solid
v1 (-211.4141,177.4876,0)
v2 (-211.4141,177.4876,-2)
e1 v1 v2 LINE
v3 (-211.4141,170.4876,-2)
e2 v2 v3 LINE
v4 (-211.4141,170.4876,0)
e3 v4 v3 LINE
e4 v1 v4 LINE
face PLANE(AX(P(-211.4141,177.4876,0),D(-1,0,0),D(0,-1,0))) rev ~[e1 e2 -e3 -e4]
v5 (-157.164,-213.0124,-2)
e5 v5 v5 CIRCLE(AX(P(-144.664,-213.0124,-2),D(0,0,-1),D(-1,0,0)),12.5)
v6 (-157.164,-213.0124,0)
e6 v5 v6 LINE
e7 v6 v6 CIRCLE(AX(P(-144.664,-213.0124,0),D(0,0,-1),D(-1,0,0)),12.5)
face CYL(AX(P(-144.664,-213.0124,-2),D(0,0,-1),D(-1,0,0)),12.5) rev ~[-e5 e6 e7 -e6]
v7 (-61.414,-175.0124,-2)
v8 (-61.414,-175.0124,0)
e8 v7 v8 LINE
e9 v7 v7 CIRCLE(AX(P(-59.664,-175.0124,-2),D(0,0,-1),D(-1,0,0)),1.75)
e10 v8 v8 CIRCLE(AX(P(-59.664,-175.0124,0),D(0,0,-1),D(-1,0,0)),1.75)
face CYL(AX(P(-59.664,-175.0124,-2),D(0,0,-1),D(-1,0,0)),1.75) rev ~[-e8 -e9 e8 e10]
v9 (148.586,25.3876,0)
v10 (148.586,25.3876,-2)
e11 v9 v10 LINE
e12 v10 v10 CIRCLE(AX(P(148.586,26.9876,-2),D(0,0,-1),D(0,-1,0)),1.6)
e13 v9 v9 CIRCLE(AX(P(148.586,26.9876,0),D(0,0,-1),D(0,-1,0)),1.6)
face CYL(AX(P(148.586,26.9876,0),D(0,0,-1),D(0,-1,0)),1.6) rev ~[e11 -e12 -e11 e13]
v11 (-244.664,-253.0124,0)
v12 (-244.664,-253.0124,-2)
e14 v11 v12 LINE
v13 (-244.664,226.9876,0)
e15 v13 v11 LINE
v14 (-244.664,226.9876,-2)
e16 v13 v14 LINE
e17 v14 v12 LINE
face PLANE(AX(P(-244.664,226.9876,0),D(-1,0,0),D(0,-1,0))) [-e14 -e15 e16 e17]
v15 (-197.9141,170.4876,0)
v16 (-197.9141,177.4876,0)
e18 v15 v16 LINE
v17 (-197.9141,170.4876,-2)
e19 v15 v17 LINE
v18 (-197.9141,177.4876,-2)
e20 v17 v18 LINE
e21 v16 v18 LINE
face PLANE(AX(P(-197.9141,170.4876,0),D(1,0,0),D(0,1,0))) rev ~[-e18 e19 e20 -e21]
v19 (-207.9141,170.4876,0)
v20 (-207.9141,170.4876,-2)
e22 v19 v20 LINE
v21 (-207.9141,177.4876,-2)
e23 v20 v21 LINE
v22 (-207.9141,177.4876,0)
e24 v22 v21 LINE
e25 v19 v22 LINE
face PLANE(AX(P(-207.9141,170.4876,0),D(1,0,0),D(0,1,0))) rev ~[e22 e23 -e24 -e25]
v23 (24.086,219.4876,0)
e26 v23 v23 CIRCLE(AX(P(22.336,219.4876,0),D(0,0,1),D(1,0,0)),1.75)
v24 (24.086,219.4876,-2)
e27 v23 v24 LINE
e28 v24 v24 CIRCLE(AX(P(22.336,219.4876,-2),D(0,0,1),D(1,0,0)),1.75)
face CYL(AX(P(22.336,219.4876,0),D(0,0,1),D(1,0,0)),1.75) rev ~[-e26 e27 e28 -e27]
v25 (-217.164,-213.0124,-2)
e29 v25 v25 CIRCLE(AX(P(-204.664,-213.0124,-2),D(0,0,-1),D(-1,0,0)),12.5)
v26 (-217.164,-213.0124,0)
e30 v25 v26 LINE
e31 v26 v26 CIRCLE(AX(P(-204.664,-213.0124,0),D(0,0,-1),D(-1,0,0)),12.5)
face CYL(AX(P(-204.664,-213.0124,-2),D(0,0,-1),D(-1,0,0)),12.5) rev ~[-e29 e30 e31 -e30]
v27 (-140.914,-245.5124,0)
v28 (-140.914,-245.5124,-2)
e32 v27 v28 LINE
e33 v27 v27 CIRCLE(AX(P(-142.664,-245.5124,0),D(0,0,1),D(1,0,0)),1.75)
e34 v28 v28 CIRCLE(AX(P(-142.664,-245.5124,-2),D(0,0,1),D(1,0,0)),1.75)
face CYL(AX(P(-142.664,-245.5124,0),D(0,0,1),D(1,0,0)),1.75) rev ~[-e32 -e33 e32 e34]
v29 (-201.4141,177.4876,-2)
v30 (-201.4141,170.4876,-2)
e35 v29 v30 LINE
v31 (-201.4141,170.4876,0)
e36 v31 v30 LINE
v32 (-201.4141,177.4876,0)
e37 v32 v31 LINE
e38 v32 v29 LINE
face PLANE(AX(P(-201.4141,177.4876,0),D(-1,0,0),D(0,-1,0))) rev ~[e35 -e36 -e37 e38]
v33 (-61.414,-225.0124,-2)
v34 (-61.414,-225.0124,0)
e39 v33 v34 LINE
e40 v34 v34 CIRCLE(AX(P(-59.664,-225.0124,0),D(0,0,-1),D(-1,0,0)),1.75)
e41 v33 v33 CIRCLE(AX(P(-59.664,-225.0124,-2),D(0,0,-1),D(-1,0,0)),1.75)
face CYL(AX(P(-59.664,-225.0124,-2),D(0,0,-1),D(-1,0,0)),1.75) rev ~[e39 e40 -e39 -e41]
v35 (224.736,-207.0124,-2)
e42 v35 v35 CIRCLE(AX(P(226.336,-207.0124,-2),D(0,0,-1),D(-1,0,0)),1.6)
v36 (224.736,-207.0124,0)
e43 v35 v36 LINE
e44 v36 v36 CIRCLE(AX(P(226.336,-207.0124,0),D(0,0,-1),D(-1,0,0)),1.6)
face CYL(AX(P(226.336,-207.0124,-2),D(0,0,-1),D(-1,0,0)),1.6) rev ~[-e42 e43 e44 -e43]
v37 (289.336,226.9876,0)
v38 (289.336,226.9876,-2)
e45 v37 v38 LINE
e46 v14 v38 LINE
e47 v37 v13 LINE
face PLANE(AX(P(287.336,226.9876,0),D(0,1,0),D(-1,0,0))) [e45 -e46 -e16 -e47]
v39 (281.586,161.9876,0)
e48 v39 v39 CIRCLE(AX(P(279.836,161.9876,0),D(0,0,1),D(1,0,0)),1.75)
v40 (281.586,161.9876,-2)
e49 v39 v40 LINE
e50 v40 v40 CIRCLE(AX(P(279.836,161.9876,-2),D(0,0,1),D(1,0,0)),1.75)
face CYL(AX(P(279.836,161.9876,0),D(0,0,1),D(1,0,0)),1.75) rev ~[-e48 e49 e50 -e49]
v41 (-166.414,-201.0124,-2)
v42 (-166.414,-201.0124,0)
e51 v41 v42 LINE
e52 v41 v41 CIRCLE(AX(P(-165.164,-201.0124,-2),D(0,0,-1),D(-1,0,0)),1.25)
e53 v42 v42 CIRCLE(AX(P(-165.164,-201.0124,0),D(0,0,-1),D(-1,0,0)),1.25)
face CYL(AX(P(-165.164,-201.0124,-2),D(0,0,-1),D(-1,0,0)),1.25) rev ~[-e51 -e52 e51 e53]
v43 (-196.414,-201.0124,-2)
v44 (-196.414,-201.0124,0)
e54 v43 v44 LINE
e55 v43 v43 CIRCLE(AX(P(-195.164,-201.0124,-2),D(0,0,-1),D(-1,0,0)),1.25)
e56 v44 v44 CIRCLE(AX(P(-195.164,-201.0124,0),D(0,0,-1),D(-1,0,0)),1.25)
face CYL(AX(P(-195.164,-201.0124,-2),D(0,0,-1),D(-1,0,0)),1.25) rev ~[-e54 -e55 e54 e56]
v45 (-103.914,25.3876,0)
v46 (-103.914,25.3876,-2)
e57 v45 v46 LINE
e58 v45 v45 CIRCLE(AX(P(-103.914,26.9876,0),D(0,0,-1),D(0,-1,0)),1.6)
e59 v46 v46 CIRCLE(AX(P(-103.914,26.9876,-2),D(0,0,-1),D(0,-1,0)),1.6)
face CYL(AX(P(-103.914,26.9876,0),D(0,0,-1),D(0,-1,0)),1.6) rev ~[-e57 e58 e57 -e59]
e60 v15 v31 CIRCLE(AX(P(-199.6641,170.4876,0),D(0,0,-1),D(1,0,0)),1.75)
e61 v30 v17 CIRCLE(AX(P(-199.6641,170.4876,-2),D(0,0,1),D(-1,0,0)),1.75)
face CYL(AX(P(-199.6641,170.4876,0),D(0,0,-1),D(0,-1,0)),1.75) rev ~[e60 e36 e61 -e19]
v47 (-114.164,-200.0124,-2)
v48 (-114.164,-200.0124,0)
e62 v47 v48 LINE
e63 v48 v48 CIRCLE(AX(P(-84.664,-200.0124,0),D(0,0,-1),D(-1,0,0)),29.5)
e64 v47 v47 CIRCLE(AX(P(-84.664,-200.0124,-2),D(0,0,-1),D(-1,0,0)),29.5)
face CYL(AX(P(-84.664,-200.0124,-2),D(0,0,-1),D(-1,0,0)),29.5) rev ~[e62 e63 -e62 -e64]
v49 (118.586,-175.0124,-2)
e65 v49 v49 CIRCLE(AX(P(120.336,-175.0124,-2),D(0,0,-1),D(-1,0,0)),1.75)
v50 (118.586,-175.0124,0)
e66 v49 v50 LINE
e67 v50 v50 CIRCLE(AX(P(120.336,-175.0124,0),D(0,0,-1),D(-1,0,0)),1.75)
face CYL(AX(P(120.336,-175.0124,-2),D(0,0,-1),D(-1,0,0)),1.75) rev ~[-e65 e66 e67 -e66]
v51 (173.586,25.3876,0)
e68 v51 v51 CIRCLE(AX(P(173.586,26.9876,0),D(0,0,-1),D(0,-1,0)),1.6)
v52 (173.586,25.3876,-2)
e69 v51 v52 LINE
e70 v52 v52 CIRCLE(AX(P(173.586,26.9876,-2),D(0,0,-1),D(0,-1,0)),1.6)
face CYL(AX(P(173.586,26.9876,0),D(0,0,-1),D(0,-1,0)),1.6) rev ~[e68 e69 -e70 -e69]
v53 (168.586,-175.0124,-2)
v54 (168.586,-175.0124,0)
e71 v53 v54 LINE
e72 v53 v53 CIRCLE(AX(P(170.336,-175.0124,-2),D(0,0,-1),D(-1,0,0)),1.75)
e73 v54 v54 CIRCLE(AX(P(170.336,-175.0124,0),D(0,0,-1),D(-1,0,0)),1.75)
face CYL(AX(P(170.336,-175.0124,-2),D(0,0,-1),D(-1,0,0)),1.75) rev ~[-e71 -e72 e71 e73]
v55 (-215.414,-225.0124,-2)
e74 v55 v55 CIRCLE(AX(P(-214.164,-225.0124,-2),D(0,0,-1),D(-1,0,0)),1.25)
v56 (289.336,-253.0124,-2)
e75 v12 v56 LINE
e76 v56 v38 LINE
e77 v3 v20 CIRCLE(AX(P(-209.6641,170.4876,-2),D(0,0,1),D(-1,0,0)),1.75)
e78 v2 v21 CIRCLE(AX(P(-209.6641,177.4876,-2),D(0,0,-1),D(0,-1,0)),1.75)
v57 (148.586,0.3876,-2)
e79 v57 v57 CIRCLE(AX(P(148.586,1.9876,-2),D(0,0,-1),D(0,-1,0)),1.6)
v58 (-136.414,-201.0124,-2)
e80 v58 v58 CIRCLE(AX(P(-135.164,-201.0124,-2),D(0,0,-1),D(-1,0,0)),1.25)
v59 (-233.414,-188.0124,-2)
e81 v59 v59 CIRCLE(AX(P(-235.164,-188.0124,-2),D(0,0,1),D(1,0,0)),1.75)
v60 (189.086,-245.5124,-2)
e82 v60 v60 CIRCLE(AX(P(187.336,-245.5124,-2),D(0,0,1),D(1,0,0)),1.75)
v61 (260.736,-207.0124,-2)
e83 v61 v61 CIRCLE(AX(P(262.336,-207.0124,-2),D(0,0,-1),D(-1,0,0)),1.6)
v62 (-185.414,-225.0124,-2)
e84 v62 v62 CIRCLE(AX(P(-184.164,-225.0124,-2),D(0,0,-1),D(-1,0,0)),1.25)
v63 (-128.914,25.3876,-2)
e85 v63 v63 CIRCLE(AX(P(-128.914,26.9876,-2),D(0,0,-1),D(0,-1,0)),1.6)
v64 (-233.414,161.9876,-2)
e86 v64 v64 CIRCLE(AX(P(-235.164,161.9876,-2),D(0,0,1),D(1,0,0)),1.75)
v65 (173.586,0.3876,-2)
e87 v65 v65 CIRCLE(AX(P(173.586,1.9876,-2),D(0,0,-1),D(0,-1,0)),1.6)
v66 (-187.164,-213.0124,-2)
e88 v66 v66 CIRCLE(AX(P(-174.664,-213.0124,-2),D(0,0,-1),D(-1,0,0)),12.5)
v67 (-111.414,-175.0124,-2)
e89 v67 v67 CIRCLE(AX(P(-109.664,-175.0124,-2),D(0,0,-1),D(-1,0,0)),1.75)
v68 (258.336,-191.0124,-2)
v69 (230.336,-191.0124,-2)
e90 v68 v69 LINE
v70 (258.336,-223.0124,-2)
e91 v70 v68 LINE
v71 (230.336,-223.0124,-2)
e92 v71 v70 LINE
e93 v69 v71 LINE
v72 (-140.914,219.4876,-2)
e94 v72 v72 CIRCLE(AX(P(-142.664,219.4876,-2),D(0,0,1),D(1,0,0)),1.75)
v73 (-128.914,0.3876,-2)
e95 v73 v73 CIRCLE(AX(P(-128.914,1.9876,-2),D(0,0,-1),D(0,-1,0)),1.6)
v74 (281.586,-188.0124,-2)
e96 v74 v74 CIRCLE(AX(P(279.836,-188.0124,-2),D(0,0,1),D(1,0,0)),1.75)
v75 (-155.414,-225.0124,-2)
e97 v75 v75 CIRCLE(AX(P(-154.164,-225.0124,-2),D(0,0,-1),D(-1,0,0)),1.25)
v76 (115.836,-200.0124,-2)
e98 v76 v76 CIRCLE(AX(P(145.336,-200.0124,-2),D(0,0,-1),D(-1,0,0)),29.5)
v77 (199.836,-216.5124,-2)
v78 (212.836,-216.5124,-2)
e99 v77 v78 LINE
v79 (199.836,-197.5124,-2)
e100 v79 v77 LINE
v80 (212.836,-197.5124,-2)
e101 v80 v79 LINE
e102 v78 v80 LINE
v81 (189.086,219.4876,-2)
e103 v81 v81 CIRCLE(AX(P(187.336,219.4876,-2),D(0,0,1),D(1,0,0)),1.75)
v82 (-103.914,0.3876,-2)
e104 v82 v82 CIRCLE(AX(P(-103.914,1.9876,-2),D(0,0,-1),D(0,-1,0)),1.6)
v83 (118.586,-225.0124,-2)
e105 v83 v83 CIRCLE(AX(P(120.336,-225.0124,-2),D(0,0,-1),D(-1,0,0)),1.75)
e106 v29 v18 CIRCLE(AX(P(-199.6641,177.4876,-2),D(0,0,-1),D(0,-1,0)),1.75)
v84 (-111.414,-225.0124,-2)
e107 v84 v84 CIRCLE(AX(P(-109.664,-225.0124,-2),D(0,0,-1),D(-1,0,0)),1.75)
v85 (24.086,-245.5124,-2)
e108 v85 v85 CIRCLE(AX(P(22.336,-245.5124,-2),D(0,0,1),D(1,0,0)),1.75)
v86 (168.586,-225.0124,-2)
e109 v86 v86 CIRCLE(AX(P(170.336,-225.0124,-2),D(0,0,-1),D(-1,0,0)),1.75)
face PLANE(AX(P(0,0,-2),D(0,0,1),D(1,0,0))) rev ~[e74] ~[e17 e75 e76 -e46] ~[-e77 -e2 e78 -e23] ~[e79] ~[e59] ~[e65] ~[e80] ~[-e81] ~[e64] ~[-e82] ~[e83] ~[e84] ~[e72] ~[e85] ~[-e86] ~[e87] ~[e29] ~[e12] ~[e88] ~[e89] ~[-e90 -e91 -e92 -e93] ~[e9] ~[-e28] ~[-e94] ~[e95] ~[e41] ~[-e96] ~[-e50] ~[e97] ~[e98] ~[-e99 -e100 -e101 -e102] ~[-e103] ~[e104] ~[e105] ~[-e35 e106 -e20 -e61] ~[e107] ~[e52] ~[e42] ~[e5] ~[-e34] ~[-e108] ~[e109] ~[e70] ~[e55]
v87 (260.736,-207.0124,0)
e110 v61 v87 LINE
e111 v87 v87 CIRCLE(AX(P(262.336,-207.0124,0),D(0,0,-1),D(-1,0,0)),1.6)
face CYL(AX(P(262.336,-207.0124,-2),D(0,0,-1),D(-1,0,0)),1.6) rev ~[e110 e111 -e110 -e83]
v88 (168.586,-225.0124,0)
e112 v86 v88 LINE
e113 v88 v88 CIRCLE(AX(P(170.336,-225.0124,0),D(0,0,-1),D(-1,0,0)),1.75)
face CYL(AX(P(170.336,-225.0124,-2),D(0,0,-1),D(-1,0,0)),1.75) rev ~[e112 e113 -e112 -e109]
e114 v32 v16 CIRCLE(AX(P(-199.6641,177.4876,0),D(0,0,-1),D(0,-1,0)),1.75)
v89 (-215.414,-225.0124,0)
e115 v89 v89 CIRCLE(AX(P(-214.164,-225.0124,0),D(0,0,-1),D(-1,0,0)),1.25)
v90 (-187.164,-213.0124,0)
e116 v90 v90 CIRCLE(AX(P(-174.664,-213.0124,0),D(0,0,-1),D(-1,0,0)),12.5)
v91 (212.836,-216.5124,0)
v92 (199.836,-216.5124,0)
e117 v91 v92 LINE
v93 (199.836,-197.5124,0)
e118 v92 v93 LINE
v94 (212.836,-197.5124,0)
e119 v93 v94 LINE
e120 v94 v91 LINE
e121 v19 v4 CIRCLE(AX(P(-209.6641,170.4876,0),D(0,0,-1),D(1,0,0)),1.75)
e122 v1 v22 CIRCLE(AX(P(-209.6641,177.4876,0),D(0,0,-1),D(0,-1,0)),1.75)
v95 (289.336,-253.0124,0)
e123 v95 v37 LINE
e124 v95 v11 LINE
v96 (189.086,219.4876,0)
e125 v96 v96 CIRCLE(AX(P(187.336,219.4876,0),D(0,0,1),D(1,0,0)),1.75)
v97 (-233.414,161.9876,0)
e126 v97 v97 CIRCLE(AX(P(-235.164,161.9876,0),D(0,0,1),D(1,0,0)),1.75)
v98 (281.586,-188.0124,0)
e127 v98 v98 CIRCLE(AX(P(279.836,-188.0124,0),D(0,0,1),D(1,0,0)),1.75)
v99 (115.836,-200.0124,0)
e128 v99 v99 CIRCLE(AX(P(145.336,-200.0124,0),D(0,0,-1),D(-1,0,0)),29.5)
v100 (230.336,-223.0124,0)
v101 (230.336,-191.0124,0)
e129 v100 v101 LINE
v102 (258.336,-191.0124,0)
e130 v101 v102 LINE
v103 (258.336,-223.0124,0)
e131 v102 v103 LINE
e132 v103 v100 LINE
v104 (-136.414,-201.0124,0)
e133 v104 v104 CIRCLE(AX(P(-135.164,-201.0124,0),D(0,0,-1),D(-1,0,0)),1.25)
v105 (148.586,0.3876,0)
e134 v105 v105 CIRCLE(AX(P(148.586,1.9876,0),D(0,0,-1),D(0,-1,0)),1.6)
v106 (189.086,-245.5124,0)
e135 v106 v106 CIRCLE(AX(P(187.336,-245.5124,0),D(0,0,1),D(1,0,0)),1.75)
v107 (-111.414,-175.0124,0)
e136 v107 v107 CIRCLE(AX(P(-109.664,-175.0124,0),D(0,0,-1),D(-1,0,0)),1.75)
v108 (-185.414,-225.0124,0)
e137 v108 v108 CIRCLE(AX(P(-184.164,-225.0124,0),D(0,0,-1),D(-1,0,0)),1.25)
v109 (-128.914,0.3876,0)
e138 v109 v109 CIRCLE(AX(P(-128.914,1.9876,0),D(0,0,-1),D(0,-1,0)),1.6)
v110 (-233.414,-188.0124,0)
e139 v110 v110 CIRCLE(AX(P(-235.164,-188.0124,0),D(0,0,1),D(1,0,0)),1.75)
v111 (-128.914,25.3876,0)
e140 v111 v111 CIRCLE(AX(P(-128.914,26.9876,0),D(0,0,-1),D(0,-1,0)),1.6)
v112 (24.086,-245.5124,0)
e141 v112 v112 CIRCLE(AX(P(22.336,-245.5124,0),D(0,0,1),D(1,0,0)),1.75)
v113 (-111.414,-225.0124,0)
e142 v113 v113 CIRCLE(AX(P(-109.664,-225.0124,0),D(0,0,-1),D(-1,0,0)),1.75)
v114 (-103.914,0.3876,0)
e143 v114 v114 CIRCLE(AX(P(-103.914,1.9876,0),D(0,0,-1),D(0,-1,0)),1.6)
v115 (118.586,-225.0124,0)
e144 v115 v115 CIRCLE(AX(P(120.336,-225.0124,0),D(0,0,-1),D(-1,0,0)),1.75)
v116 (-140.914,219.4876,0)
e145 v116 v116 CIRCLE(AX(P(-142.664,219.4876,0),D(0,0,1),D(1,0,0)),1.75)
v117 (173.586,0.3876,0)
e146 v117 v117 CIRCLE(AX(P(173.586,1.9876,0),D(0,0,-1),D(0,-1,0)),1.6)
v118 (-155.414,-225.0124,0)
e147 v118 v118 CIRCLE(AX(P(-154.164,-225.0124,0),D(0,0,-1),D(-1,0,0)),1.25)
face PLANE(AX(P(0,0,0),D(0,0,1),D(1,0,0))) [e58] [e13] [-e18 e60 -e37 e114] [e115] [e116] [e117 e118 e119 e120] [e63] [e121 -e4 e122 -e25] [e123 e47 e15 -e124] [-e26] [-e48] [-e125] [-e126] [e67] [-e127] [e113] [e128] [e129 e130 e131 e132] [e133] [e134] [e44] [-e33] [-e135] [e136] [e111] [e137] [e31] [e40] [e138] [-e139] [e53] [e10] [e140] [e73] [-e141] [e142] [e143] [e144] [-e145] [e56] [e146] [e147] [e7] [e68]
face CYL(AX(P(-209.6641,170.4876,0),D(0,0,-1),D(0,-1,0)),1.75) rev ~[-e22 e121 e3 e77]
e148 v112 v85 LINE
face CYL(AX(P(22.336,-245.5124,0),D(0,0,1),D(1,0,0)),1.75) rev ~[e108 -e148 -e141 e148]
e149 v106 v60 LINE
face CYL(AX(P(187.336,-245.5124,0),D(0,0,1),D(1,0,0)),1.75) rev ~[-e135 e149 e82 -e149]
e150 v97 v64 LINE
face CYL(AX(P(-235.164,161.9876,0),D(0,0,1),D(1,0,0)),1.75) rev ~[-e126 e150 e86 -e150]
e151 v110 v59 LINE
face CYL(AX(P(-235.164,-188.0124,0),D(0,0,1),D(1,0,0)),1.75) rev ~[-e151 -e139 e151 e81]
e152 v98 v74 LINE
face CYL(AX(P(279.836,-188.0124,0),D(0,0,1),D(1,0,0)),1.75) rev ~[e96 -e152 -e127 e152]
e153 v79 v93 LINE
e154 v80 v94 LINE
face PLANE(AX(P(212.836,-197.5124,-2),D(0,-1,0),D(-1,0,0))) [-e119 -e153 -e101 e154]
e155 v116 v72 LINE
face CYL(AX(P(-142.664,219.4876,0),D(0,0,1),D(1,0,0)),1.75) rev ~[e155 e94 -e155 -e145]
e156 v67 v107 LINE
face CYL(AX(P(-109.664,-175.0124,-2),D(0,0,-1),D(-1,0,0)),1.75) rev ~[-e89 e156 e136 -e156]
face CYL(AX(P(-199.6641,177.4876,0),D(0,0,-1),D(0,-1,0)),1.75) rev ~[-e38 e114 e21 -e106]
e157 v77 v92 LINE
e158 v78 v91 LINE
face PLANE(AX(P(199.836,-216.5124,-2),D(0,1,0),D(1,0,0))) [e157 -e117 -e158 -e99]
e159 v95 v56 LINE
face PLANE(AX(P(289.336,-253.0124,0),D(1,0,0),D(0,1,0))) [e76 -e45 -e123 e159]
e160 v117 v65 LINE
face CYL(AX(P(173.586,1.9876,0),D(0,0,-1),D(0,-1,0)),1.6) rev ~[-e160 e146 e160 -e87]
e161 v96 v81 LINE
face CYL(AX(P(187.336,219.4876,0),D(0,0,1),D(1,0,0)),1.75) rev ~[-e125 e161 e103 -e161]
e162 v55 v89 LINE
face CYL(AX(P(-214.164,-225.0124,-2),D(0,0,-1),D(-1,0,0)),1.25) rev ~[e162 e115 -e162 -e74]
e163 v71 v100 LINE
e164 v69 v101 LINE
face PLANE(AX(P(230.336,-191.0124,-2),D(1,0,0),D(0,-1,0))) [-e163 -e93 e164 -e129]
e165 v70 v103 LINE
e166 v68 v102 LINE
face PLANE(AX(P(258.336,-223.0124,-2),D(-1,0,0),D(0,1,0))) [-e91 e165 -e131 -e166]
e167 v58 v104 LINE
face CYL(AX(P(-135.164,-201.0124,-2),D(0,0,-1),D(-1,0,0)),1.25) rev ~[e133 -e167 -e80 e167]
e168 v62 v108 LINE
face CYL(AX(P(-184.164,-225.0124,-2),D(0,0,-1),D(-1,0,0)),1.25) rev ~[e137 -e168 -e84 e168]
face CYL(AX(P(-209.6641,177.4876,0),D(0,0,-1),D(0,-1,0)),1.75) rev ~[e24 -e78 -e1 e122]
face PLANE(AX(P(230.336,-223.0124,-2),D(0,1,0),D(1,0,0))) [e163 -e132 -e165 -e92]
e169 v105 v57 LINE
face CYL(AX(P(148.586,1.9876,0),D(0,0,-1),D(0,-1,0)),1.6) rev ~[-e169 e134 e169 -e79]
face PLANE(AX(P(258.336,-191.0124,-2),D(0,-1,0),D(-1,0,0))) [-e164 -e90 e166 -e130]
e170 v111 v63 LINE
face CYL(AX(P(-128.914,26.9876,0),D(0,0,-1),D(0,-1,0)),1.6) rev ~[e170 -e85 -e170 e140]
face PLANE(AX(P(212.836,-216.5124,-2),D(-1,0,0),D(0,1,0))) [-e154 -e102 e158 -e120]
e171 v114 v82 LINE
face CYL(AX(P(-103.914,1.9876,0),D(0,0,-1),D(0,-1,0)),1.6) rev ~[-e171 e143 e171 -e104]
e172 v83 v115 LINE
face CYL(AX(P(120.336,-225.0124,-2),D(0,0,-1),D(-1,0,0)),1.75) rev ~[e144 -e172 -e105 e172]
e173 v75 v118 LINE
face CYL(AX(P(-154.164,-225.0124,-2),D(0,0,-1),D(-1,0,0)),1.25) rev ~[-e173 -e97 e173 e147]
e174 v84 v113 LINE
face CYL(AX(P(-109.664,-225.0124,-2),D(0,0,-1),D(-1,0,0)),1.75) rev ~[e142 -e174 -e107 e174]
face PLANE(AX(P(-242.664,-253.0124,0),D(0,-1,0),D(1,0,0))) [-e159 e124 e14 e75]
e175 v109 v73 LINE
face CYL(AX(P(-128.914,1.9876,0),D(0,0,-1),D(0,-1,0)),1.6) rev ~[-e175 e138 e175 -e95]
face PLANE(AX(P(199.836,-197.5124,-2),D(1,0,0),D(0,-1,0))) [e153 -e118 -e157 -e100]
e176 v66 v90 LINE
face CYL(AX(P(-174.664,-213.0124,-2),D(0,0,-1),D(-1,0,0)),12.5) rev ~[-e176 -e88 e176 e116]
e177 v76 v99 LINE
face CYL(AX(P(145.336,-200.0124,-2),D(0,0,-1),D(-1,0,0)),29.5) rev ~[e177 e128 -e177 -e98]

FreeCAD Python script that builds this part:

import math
import FreeCAD as App
import Part
import Sketcher
from FreeCAD import Vector

doc = App.newDocument("Part")
body = doc.addObject("PartDesign::Body", "Body")

# Sketch on XY plane
sketch1 = body.newObject("Sketcher::SketchObject", "Sketch")
sketch1.AttachmentSupport = (doc.getObject("XY_Plane"), [""])
sketch1.MapMode = "FlatFace"
sketch1.addGeometry(Part.LineSegment(Vector(289.336, -253.0124, 0), Vector(289.336, 226.9876, 0)), False)
sketch1.addGeometry(Part.LineSegment(Vector(289.336, 226.9876, 0), Vector(-244.664, 226.9876, 0)), False)
sketch1.addGeometry(Part.LineSegment(Vector(-244.664, 226.9876, 0), Vector(-244.664, -253.0124, 0)), False)
sketch1.addGeometry(Part.LineSegment(Vector(-244.664, -253.0124, 0), Vector(289.336, -253.0124, 0)), False)
sketch1.addGeometry(Part.Circle(Vector(-142.664, -245.5124, 0), Vector(0, 0, 1), 1.75), False)
sketch1.addGeometry(Part.Circle(Vector(-235.164, -188.0124, 0), Vector(0, 0, 1), 1.75), False)
sketch1.addGeometry(Part.Circle(Vector(22.336, -245.5124, 0), Vector(0, 0, 1), 1.75), False)
sketch1.addGeometry(Part.Circle(Vector(187.336, -245.5124, 0), Vector(0, 0, 1), 1.75), False)
sketch1.addGeometry(Part.Circle(Vector(279.836, -188.0124, 0), Vector(0, 0, 1), 1.75), False)
sketch1.addGeometry(Part.Circle(Vector(-235.164, 161.9876, 0), Vector(0, 0, 1), 1.75), False)
sketch1.addGeometry(Part.Circle(Vector(-142.664, 219.4876, 0), Vector(0, 0, 1), 1.75), False)
sketch1.addGeometry(Part.Circle(Vector(22.336, 219.4876, 0), Vector(0, 0, 1), 1.75), False)
sketch1.addGeometry(Part.Circle(Vector(279.836, 161.9876, 0), Vector(0, 0, 1), 1.75), False)
sketch1.addGeometry(Part.Circle(Vector(187.336, 219.4876, 0), Vector(0, 0, 1), 1.75), False)
sketch1.addConstraint(Sketcher.Constraint("Coincident", 0, 2, 1, 1))
sketch1.addConstraint(Sketcher.Constraint("Coincident", 1, 2, 2, 1))
sketch1.addConstraint(Sketcher.Constraint("Coincident", 2, 2, 3, 1))
sketch1.addConstraint(Sketcher.Constraint("Coincident", 3, 2, 0, 1))
sketch1.addConstraint(Sketcher.Constraint("Vertical", 0))
sketch1.addConstraint(Sketcher.Constraint("Horizontal", 1))
sketch1.addConstraint(Sketcher.Constraint("Vertical", 2))
sketch1.addConstraint(Sketcher.Constraint("Horizontal", 3))
sketch1.addConstraint(Sketcher.Constraint("Equal", 4, 5))
sketch1.addConstraint(Sketcher.Constraint("Equal", 5, 6))
sketch1.addConstraint(Sketcher.Constraint("Equal", 6, 7))
sketch1.addConstraint(Sketcher.Constraint("Equal", 7, 8))
sketch1.addConstraint(Sketcher.Constraint("Equal", 8, 9))
sketch1.addConstraint(Sketcher.Constraint("Equal", 9, 10))
sketch1.addConstraint(Sketcher.Constraint("Equal", 10, 11))
sketch1.addConstraint(Sketcher.Constraint("Equal", 11, 12))
sketch1.addConstraint(Sketcher.Constraint("Equal", 12, 13))
sketch1.addConstraint(Sketcher.Constraint("Horizontal", 4, 3, 6, 3))
sketch1.addConstraint(Sketcher.Constraint("Horizontal", 6, 3, 7, 3))
sketch1.addConstraint(Sketcher.Constraint("Horizontal", 5, 3, 8, 3))
sketch1.addConstraint(Sketcher.Constraint("Horizontal", 10, 3, 11, 3))
sketch1.addConstraint(Sketcher.Constraint("Horizontal", 9, 3, 12, 3))
sketch1.addConstraint(Sketcher.Constraint("Horizontal", 11, 3, 13, 3))
sketch1.addConstraint(Sketcher.Constraint("Vertical", 5, 3, 9, 3))
sketch1.addConstraint(Sketcher.Constraint("Vertical", 4, 3, 10, 3))
sketch1.addConstraint(Sketcher.Constraint("Vertical", 6, 3, 11, 3))
sketch1.addConstraint(Sketcher.Constraint("Vertical", 8, 3, 12, 3))
sketch1.addConstraint(Sketcher.Constraint("Vertical", 7, 3, 13, 3))
sketch1.addConstraint(Sketcher.Constraint("Diameter", 4, 3.5))
sketch1.addConstraint(Sketcher.Constraint("DistanceY", 12, 3, 0, 2, 65.0))
sketch1.addConstraint(Sketcher.Constraint("DistanceY", 2, 2, 5, 3, 65.0))
sketch1.addConstraint(Sketcher.Constraint("DistanceY", 13, 3, 0, 2, 7.5))
sketch1.addConstraint(Sketcher.Constraint("DistanceY", 2, 2, 4, 3, 7.5))
sketch1.addConstraint(Sketcher.Constraint("DistanceX", 1, 2, 1, 1, 534.0))
sketch1.addConstraint(Sketcher.Constraint("DistanceY", 0, 1, 0, 2, 480.0))
sketch1.addConstraint(Sketcher.Constraint("DistanceX", 4, 3, 6, 3, 165.0))
sketch1.addConstraint(Sketcher.Constraint("DistanceX", 6, 3, 7, 3, 165.0))
sketch1.addConstraint(Sketcher.Constraint("DistanceX", 5, 3, 8, 3, 515.0))
sketch1.addConstraint(Sketcher.Constraint("DistanceX", 13, 3, 0, 2, 102.0))
sketch1.addConstraint(Sketcher.Constraint("DistanceX", 5, 3, 4, 3, 92.5))
sketch1.addConstraint(Sketcher.Constraint("DistanceX", 4, 3, -1, 1, 142.664))
sketch1.addConstraint(Sketcher.Constraint("DistanceY", 4, 3, -1, 1, 245.5124))
pad1 = body.newObject("PartDesign::Pad", "Pad")
pad1.Profile = sketch1
pad1.Length = 2
pad1.Reversed = True

# Sketch on XY plane
sketch2 = body.newObject("Sketcher::SketchObject", "Sketch001")
sketch2.AttachmentSupport = (doc.getObject("XY_Plane"), [""])
sketch2.MapMode = "FlatFace"
sketch2.addGeometry(Part.Circle(Vector(-209.6641, 177.4876, 0), Vector(0, 0, 1), 1.75), False)
sketch2.addGeometry(Part.Circle(Vector(-209.6641, 170.4876, 0), Vector(0, 0, 1), 1.75), False)
sketch2.addGeometry(Part.Circle(Vector(-199.6641, 170.4876, 0), Vector(0, 0, 1), 1.75), False)
sketch2.addGeometry(Part.Circle(Vector(-199.6641, 177.4876, 0), Vector(0, 0, 1), 1.75), False)
sketch2.addConstraint(Sketcher.Constraint("Equal", 0, 1))
sketch2.addConstraint(Sketcher.Constraint("Equal", 1, 2))
sketch2.addConstraint(Sketcher.Constraint("Equal", 2, 3))
sketch2.addConstraint(Sketcher.Constraint("Horizontal", 1, 3, 2, 3))
sketch2.addConstraint(Sketcher.Constraint("Horizontal", 0, 3, 3, 3))
sketch2.addConstraint(Sketcher.Constraint("Vertical", 0, 3, 1, 3))
sketch2.addConstraint(Sketcher.Constraint("Vertical", 2, 3, 3, 3))
sketch2.addConstraint(Sketcher.Constraint("Diameter", 0, 3.5))
sketch2.addConstraint(Sketcher.Constraint("DistanceY", 1, 3, 0, 3, 7.0))
sketch2.addConstraint(Sketcher.Constraint("DistanceX", 1, 3, 2, 3, 10.0))
sketch2.addConstraint(Sketcher.Constraint("DistanceX", 0, 3, -1, 1, 209.664))
sketch2.addConstraint(Sketcher.Constraint("DistanceY", -1, 1, 0, 3, 177.4876))
doc.recompute()
hole = body.newObject("PartDesign::Hole", "Hole")
hole.Profile = sketch2
hole.ThreadType = "None"
hole.Diameter = 3.5
hole.DepthType = "ThroughAll"

# Sketch on XY plane
sketch3 = body.newObject("Sketcher::SketchObject", "Sketch002")
sketch3.AttachmentSupport = (doc.getObject("XY_Plane"), [""])
sketch3.MapMode = "FlatFace"
sketch3.AttachmentOffset = App.Placement(Vector(0, 0, -2), App.Rotation())
sketch3.addGeometry(Part.LineSegment(Vector(258.336, -223.0124, 0), Vector(230.336, -223.0124, 0)), False)
sketch3.addGeometry(Part.LineSegment(Vector(230.336, -223.0124, 0), Vector(230.336, -191.0124, 0)), False)
sketch3.addGeometry(Part.LineSegment(Vector(230.336, -191.0124, 0), Vector(258.336, -191.0124, 0)), False)
sketch3.addGeometry(Part.LineSegment(Vector(258.336, -191.0124, 0), Vector(258.336, -223.0124, 0)), False)
sketch3.addGeometry(Part.Circle(Vector(262.336, -207.0124, 0), Vector(0, 0, 1), 1.6), False)
sketch3.addGeometry(Part.Circle(Vector(226.336, -207.0124, 0), Vector(0, 0, 1), 1.6), False)
sketch3.addGeometry(Part.LineSegment(Vector(212.836, -216.5124, 0), Vector(199.836, -216.5124, 0)), False)
sketch3.addGeometry(Part.LineSegment(Vector(199.836, -216.5124, 0), Vector(199.836, -197.5124, 0)), False)
sketch3.addGeometry(Part.LineSegment(Vector(199.836, -197.5124, 0), Vector(212.836, -197.5124, 0)), False)
sketch3.addGeometry(Part.LineSegment(Vector(212.836, -197.5124, 0), Vector(212.836, -216.5124, 0)), False)
sketch3.addGeometry(Part.Circle(Vector(-84.664, -200.0124, 0), Vector(0, 0, 1), 29.5), False)
sketch3.addGeometry(Part.Circle(Vector(-59.664, -225.0124, 0), Vector(0, 0, 1), 1.75), False)
sketch3.addGeometry(Part.Circle(Vector(-109.664, -225.0124, 0), Vector(0, 0, 1), 1.75), False)
sketch3.addGeometry(Part.Circle(Vector(-59.664, -175.0124, 0), Vector(0, 0, 1), 1.75), False)
sketch3.addGeometry(Part.Circle(Vector(-109.664, -175.0124, 0), Vector(0, 0, 1), 1.75), False)
sketch3.addGeometry(Part.Circle(Vector(170.336, -175.0124, 0), Vector(0, 0, 1), 1.75), False)
sketch3.addGeometry(Part.Circle(Vector(170.336, -225.0124, 0), Vector(0, 0, 1), 1.75), False)
sketch3.addGeometry(Part.Circle(Vector(120.336, -175.0124, 0), Vector(0, 0, 1), 1.75), False)
sketch3.addGeometry(Part.Circle(Vector(145.336, -200.0124, 0), Vector(0, 0, 1), 29.5), False)
sketch3.addGeometry(Part.Circle(Vector(120.336, -225.0124, 0), Vector(0, 0, 1), 1.75), False)
sketch3.addGeometry(Part.Circle(Vector(-204.664, -213.0124, 0), Vector(0, 0, 1), 12.5), False)
sketch3.addGeometry(Part.Circle(Vector(-195.164, -201.0124, 0), Vector(0, 0, 1), 1.25), False)
sketch3.addGeometry(Part.Circle(Vector(-214.164, -225.0124, 0), Vector(0, 0, 1), 1.25), False)
sketch3.addGeometry(Part.Circle(Vector(-184.164, -225.0124, 0), Vector(0, 0, 1), 1.25), False)
sketch3.addGeometry(Part.Circle(Vector(-174.664, -213.0124, 0), Vector(0, 0, 1), 12.5), False)
sketch3.addGeometry(Part.Circle(Vector(-165.164, -201.0124, 0), Vector(0, 0, 1), 1.25), False)
sketch3.addGeometry(Part.Circle(Vector(-154.164, -225.0124, 0), Vector(0, 0, 1), 1.25), False)
sketch3.addGeometry(Part.Circle(Vector(-144.664, -213.0124, 0), Vector(0, 0, 1), 12.5), False)
sketch3.addGeometry(Part.Circle(Vector(-135.164, -201.0124, 0), Vector(0, 0, 1), 1.25), False)
sketch3.addConstraint(Sketcher.Constraint("Coincident", 0, 2, 1, 1))
sketch3.addConstraint(Sketcher.Constraint("Coincident", 1, 2, 2, 1))
sketch3.addConstraint(Sketcher.Constraint("Coincident", 2, 2, 3, 1))
sketch3.addConstraint(Sketcher.Constraint("Coincident", 3, 2, 0, 1))
sketch3.addConstraint(Sketcher.Constraint("Coincident", 6, 2, 7, 1))
sketch3.addConstraint(Sketcher.Constraint("Coincident", 7, 2, 8, 1))
sketch3.addConstraint(Sketcher.Constraint("Coincident", 8, 2, 9, 1))
sketch3.addConstraint(Sketcher.Constraint("Coincident", 9, 2, 6, 1))
sketch3.addConstraint(Sketcher.Constraint("Horizontal", 0))
sketch3.addConstraint(Sketcher.Constraint("Vertical", 1))
sketch3.addConstraint(Sketcher.Constraint("Horizontal", 2))
sketch3.addConstraint(Sketcher.Constraint("Vertical", 3))
sketch3.addConstraint(Sketcher.Constraint("Horizontal", 6))
sketch3.addConstraint(Sketcher.Constraint("Vertical", 7))
sketch3.addConstraint(Sketcher.Constraint("Horizontal", 8))
sketch3.addConstraint(Sketcher.Constraint("Vertical", 9))
sketch3.addConstraint(Sketcher.Constraint("Equal", 4, 5))
sketch3.addConstraint(Sketcher.Constraint("Equal", 11, 12))
sketch3.addConstraint(Sketcher.Constraint("Equal", 12, 13))
sketch3.addConstraint(Sketcher.Constraint("Equal", 13, 14))
sketch3.addConstraint(Sketcher.Constraint("Equal", 14, 15))
sketch3.addConstraint(Sketcher.Constraint("Equal", 15, 16))
sketch3.addConstraint(Sketcher.Constraint("Equal", 16, 17))
sketch3.addConstraint(Sketcher.Constraint("Equal", 10, 18))
sketch3.addConstraint(Sketcher.Constraint("Equal", 17, 19))
sketch3.addConstraint(Sketcher.Constraint("Equal", 21, 22))
sketch3.addConstraint(Sketcher.Constraint("Equal", 22, 23))
sketch3.addConstraint(Sketcher.Constraint("Equal", 20, 24))
sketch3.addConstraint(Sketcher.Constraint("Equal", 23, 25))
sketch3.addConstraint(Sketcher.Constraint("Equal", 25, 26))
sketch3.addConstraint(Sketcher.Constraint("Equal", 24, 27))
sketch3.addConstraint(Sketcher.Constraint("Equal", 26, 28))
sketch3.addConstraint(Sketcher.Constraint("Horizontal", 4, 3, 5, 3))
sketch3.addConstraint(Sketcher.Constraint("Horizontal", 11, 3, 12, 3))
sketch3.addConstraint(Sketcher.Constraint("Horizontal", 13, 3, 14, 3))
sketch3.addConstraint(Sketcher.Constraint("Horizontal", 14, 3, 15, 3))
sketch3.addConstraint(Sketcher.Constraint("Horizontal", 12, 3, 16, 3))
sketch3.addConstraint(Sketcher.Constraint("Horizontal", 15, 3, 17, 3))
sketch3.addConstraint(Sketcher.Constraint("Horizontal", 10, 3, 18, 3))
sketch3.addConstraint(Sketcher.Constraint("Horizontal", 16, 3, 19, 3))
sketch3.addConstraint(Sketcher.Constraint("Horizontal", 19, 3, 22, 3))
sketch3.addConstraint(Sketcher.Constraint("Horizontal", 22, 3, 23, 3))
sketch3.addConstraint(Sketcher.Constraint("Horizontal", 20, 3, 24, 3))
sketch3.addConstraint(Sketcher.Constraint("Horizontal", 21, 3, 25, 3))
sketch3.addConstraint(Sketcher.Constraint("Horizontal", 23, 3, 26, 3))
sketch3.addConstraint(Sketcher.Constraint("Horizontal", 24, 3, 27, 3))
sketch3.addConstraint(Sketcher.Constraint("Horizontal", 25, 3, 28, 3))
sketch3.addConstraint(Sketcher.Constraint("Vertical", 11, 3, 13, 3))
sketch3.addConstraint(Sketcher.Constraint("Vertical", 12, 3, 14, 3))
sketch3.addConstraint(Sketcher.Constraint("Vertical", 15, 3, 16, 3))
sketch3.addConstraint(Sketcher.Constraint("Vertical", 17, 3, 19, 3))
sketch3.addConstraint(Sketcher.Constraint("Diameter", 10, 59.0))
sketch3.addConstraint(Sketcher.Constraint("Diameter", 20, 25.0))
sketch3.addConstraint(Sketcher.Constraint("Diameter", 4, 3.2))
sketch3.addConstraint(Sketcher.Constraint("Diameter", 11, 3.5))
sketch3.addConstraint(Sketcher.Constraint("Diameter", 21, 2.5))
sketch3.addConstraint(Sketcher.Constraint("DistanceX", 0, 2, 0, 1, 28.0))
sketch3.addConstraint(Sketcher.Constraint("DistanceX", 6, 2, 6, 1, 13.0))
sketch3.addConstraint(Sketcher.Constraint("DistanceY", 1, 1, 1, 2, 32.0))
sketch3.addConstraint(Sketcher.Constraint("DistanceY", 7, 1, 7, 2, 19.0))
sketch3.addConstraint(Sketcher.Constraint("DistanceX", 5, 3, 4, 3, 36.0))
sketch3.addConstraint(Sketcher.Constraint("DistanceX", 10, 3, 11, 3, 25.0))
sketch3.addConstraint(Sketcher.Constraint("DistanceY", 11, 3, 10, 3, 25.0))
sketch3.addConstraint(Sketcher.Constraint("DistanceY", 11, 3, 5, 3, 18.0))
sketch3.addConstraint(Sketcher.Constraint("DistanceX", 12, 3, 10, 3, 25.0))
sketch3.addConstraint(Sketcher.Constraint("DistanceY", 10, 3, 13, 3, 25.0))
sketch3.addConstraint(Sketcher.Constraint("DistanceX", 13, 3, 15, 3, 230.0))
sketch3.addConstraint(Sketcher.Constraint("DistanceX", 17, 3, 15, 3, 50.0))
sketch3.addConstraint(Sketcher.Constraint("DistanceX", 18, 3, 15, 3, 25.0))
sketch3.addConstraint(Sketcher.Constraint("DistanceY", 12, 3, 20, 3, 12.0))
sketch3.addConstraint(Sketcher.Constraint("DistanceY", 20, 3, 21, 3, 12.0))
sketch3.addConstraint(Sketcher.Constraint("DistanceX", 22, 3, 21, 3, 19.0))
sketch3.addConstraint(Sketcher.Constraint("DistanceX", 22, 3, 23, 3, 30.0))
sketch3.addConstraint(Sketcher.Constraint("DistanceX", 20, 3, 24, 3, 30.0))
sketch3.addConstraint(Sketcher.Constraint("DistanceX", 21, 3, 25, 3, 30.0))
sketch3.addConstraint(Sketcher.Constraint("DistanceX", 23, 3, 26, 3, 30.0))
sketch3.addConstraint(Sketcher.Constraint("DistanceX", 24, 3, 27, 3, 30.0))
sketch3.addConstraint(Sketcher.Constraint("DistanceX", 25, 3, 28, 3, 30.0))
sketch3.addConstraint(Sketcher.Constraint("DistanceX", 0, 2, 4, 3, 32.0))
sketch3.addConstraint(Sketcher.Constraint("DistanceX", 20, 3, 21, 3, 9.5))
sketch3.addConstraint(Sketcher.Constraint("DistanceY", 6, 2, 5, 3, 9.5))
sketch3.addConstraint(Sketcher.Constraint("DistanceX", 10, 3, 5, 3, 311.0))
sketch3.addConstraint(Sketcher.Constraint("DistanceX", 20, 3, 12, 3, 95.0))
sketch3.addConstraint(Sketcher.Constraint("DistanceY", 0, 2, 5, 3, 16.0))
sketch3.addConstraint(Sketcher.Constraint("DistanceX", 6, 2, 5, 3, 26.5))
sketch3.addConstraint(Sketcher.Constraint("DistanceX", -1, 1, 4, 3, 262.336))
sketch3.addConstraint(Sketcher.Constraint("DistanceY", 4, 3, -1, 1, 207.0124))
pocket1 = body.newObject("PartDesign::Pocket", "Pocket")
pocket1.Profile = sketch3
pocket1.Type = "ThroughAll"
pocket1.Reversed = True

# Sketch on XY plane
sketch4 = body.newObject("Sketcher::SketchObject", "Sketch003")
sketch4.AttachmentSupport = (doc.getObject("XY_Plane"), [""])
sketch4.MapMode = "FlatFace"
sketch4.addGeometry(Part.Circle(Vector(-128.914, 1.9876, 0), Vector(0, 0, 1), 1.6), False)
sketch4.addGeometry(Part.Circle(Vector(-103.914, 1.9876, 0), Vector(0, 0, 1), 1.6), False)
sketch4.addGeometry(Part.Circle(Vector(-128.914, 26.9876, 0), Vector(0, 0, 1), 1.6), False)
sketch4.addGeometry(Part.Circle(Vector(-103.914, 26.9876, 0), Vector(0, 0, 1), 1.6), False)
sketch4.addGeometry(Part.Circle(Vector(173.586, 1.9876, 0), Vector(0, 0, 1), 1.6), False)
sketch4.addGeometry(Part.Circle(Vector(173.586, 26.9876, 0), Vector(0, 0, 1), 1.6), False)
sketch4.addGeometry(Part.Circle(Vector(148.586, 26.9876, 0), Vector(0, 0, 1), 1.6), False)
sketch4.addGeometry(Part.Circle(Vector(148.586, 1.9876, 0), Vector(0, 0, 1), 1.6), False)
sketch4.addConstraint(Sketcher.Constraint("Equal", 0, 1))
sketch4.addConstraint(Sketcher.Constraint("Equal", 1, 2))
sketch4.addConstraint(Sketcher.Constraint("Equal", 2, 3))
sketch4.addConstraint(Sketcher.Constraint("Equal", 3, 4))
sketch4.addConstraint(Sketcher.Constraint("Equal", 4, 5))
sketch4.addConstraint(Sketcher.Constraint("Equal", 5, 6))
sketch4.addConstraint(Sketcher.Constraint("Equal", 6, 7))
sketch4.addConstraint(Sketcher.Constraint("Horizontal", 0, 3, 1, 3))
sketch4.addConstraint(Sketcher.Constraint("Horizontal", 2, 3, 3, 3))
sketch4.addConstraint(Sketcher.Constraint("Horizontal", 1, 3, 4, 3))
sketch4.addConstraint(Sketcher.Constraint("Horizontal", 3, 3, 5, 3))
sketch4.addConstraint(Sketcher.Constraint("Horizontal", 5, 3, 6, 3))
sketch4.addConstraint(Sketcher.Constraint("Horizontal", 4, 3, 7, 3))
sketch4.addConstraint(Sketcher.Constraint("Vertical", 0, 3, 2, 3))
sketch4.addConstraint(Sketcher.Constraint("Vertical", 1, 3, 3, 3))
sketch4.addConstraint(Sketcher.Constraint("Vertical", 4, 3, 5, 3))
sketch4.addConstraint(Sketcher.Constraint("Vertical", 6, 3, 7, 3))
sketch4.addConstraint(Sketcher.Constraint("Diameter", 0, 3.2))
sketch4.addConstraint(Sketcher.Constraint("DistanceX", 0, 3, 1, 3, 25.0))
sketch4.addConstraint(Sketcher.Constraint("DistanceY", 0, 3, 2, 3, 25.0))
sketch4.addConstraint(Sketcher.Constraint("DistanceX", 6, 3, 5, 3, 25.0))
sketch4.addConstraint(Sketcher.Constraint("DistanceX", 1, 3, 4, 3, 277.5))
sketch4.addConstraint(Sketcher.Constraint("DistanceX", 0, 3, -1, 1, 128.914))
sketch4.addConstraint(Sketcher.Constraint("DistanceY", -1, 1, 0, 3, 1.9876))
doc.recompute()
hole2 = body.newObject("PartDesign::Hole", "Hole001")
hole2.Profile = sketch4
hole2.ThreadType = "None"
hole2.Diameter = 3.2
hole2.DepthType = "ThroughAll"

# Sketch on XY plane
sketch5 = body.newObject("Sketcher::SketchObject", "Sketch004")
sketch5.AttachmentSupport = (doc.getObject("XY_Plane"), [""])
sketch5.MapMode = "FlatFace"
sketch5.addGeometry(Part.ArcOfCircle(Part.Circle(Vector(-199.6641, 170.4876, 0), Vector(0, 0, 1), 1.75), math.radians(0), math.radians(180)), False)
sketch5.addGeometry(Part.LineSegment(Vector(-197.9141, 170.4876, 0), Vector(-197.9141, 177.4876, 0)), False)
sketch5.addGeometry(Part.ArcOfCircle(Part.Circle(Vector(-199.6641, 177.4876, 0), Vector(0, 0, 1), 1.75), math.radians(180), math.radians(360)), False)
sketch5.addGeometry(Part.LineSegment(Vector(-201.4141, 177.4876, 0), Vector(-201.4141, 170.4876, 0)), False)
sketch5.addGeometry(Part.LineSegment(Vector(-207.9141, 170.4876, 0), Vector(-207.9141, 177.4876, 0)), False)
sketch5.addGeometry(Part.ArcOfCircle(Part.Circle(Vector(-209.6641, 177.4876, 0), Vector(0, 0, 1), 1.75), math.radians(180), math.radians(360)), False)
sketch5.addGeometry(Part.LineSegment(Vector(-211.4141, 177.4876, 0), Vector(-211.4141, 170.4876, 0)), False)
sketch5.addGeometry(Part.ArcOfCircle(Part.Circle(Vector(-209.6641, 170.4876, 0), Vector(0, 0, 1), 1.75), math.radians(0), math.radians(180)), False)
sketch5.addConstraint(Sketcher.Constraint("Tangent", 0, 1, 1, 1))
sketch5.addConstraint(Sketcher.Constraint("Tangent", 1, 2, 2, 2))
sketch5.addConstraint(Sketcher.Constraint("Tangent", 2, 1, 3, 1))
sketch5.addConstraint(Sketcher.Constraint("Tangent", 3, 2, 0, 2))
sketch5.addConstraint(Sketcher.Constraint("Tangent", 4, 2, 5, 2))
sketch5.addConstraint(Sketcher.Constraint("Tangent", 5, 1, 6, 1))
sketch5.addConstraint(Sketcher.Constraint("Tangent", 6, 2, 7, 2))
sketch5.addConstraint(Sketcher.Constraint("Tangent", 7, 1, 4, 1))
sketch5.addConstraint(Sketcher.Constraint("Vertical", 1))
sketch5.addConstraint(Sketcher.Constraint("Vertical", 3))
sketch5.addConstraint(Sketcher.Constraint("Vertical", 4))
sketch5.addConstraint(Sketcher.Constraint("Vertical", 6))
sketch5.addConstraint(Sketcher.Constraint("Equal", 2, 5))
sketch5.addConstraint(Sketcher.Constraint("Horizontal", 2, 3, 5, 3))
sketch5.addConstraint(Sketcher.Constraint("Horizontal", 0, 3, 7, 3))
sketch5.addConstraint(Sketcher.Constraint("DistanceY", 1, 1, 1, 2, 7.0))
sketch5.addConstraint(Sketcher.Constraint("Radius", 0, 1.75))
sketch5.addConstraint(Sketcher.Constraint("DistanceX", 5, 3, 2, 3, 10.0))
sketch5.addConstraint(Sketcher.Constraint("DistanceX", 0, 3, -1, 1, 199.664))
sketch5.addConstraint(Sketcher.Constraint("DistanceY", -1, 1, 0, 3, 170.4876))
pocket2 = body.newObject("PartDesign::Pocket", "Pocket001")
pocket2.Profile = sketch5
pocket2.Type = "ThroughAll"

doc.recompute()
